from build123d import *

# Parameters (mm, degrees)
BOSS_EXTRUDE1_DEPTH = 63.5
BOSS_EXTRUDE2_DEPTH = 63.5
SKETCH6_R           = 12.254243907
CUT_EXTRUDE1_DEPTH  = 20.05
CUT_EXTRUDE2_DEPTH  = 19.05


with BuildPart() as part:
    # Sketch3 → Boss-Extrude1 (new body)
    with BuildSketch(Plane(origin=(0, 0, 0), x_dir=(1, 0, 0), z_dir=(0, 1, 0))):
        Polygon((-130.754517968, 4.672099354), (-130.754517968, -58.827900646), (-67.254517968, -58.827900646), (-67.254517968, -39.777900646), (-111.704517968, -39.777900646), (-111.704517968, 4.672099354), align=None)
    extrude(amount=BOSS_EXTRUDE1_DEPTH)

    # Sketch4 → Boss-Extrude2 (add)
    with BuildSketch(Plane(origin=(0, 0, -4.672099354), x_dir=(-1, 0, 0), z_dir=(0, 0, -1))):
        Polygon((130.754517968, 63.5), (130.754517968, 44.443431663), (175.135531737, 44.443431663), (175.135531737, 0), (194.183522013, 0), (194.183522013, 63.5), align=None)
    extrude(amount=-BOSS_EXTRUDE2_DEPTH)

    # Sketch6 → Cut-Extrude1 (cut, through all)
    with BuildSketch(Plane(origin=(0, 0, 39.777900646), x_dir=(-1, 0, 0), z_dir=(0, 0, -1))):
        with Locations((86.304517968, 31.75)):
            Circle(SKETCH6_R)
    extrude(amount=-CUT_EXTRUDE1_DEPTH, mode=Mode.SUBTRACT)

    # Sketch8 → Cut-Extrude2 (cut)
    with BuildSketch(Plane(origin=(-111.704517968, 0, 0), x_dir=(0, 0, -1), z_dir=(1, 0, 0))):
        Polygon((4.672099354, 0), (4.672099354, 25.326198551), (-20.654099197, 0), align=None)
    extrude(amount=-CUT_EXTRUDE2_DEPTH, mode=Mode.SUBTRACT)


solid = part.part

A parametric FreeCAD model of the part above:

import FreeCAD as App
import Part
import Sketcher
from FreeCAD import Vector
Q = App.Units.Quantity


def add_polygon(sketch, points):
    """Adds a closed chain of lines whose ends are joined by coincident constraints."""
    first, n = sketch.GeometryCount, len(points)
    for a, b in zip(points, points[1:] + points[:1]):
        sketch.addGeometry(Part.LineSegment(App.Vector(*a, 0), App.Vector(*b, 0)), False)
    for i in range(n):
        sketch.addConstraint(Sketcher.Constraint("Coincident", first + i, 2, first + (i + 1) % n, 1))

doc = App.newDocument("Part")
body = doc.addObject("PartDesign::Body", "Body")

# Sketch on XZ plane
sketch1 = body.newObject("Sketcher::SketchObject", "Sketch")
sketch1.AttachmentSupport = (doc.getObject("XZ_Plane"), [""])
sketch1.MapMode = "FlatFace"
add_polygon(sketch1, [(-131, -5), (-131, 59), (-67, 59), (-67, 40), (-112, 40), (-112, -5)])  # lines 0-5
sketch1.addConstraint(Sketcher.Constraint("Vertical", 0))
sketch1.addConstraint(Sketcher.Constraint("Horizontal", 1))
sketch1.addConstraint(Sketcher.Constraint("Vertical", 2))
sketch1.addConstraint(Sketcher.Constraint("Horizontal", 3))
sketch1.addConstraint(Sketcher.Constraint("Vertical", 4))
sketch1.addConstraint(Sketcher.Constraint("Horizontal", 5))
sketch1.addConstraint(Sketcher.Constraint("Equal", 1, 0))
sketch1.addConstraint(Sketcher.Constraint("Equal", 5, 2))
sketch1.addConstraint(Sketcher.Constraint("DistanceX", 1, 1, 1, 2, Q("2.5 in")))
sketch1.addConstraint(Sketcher.Constraint("DistanceX", 3, 2, 3, 1, Q("1.75 in")))
sketch1.addConstraint(Sketcher.Constraint("DistanceY", -1, 1, 0, 2, Q("58.827901 mm")))
sketch1.addConstraint(Sketcher.Constraint("DistanceX", 0, 2, -1, 1, Q("130.754518 mm")))
pad1 = body.newObject("PartDesign::Pad", "Pad")
pad1.Profile = sketch1
pad1.Length = Q("2.5 in")
pad1.Reversed = True

# Sketch on XY plane
sketch2 = body.newObject("Sketcher::SketchObject", "Sketch001")
sketch2.AttachmentSupport = (doc.getObject("XY_Plane"), [""])
sketch2.MapMode = "FlatFace"
sketch2.AttachmentOffset = App.Placement(Vector(0, 0, -4.672099), App.Rotation())
add_polygon(sketch2, [(-131, 64), (-131, 44), (-175, 44), (-175, 0), (-194, 0), (-194, 64)])  # lines 0-5
sketch2.addConstraint(Sketcher.Constraint("Vertical", 0))
sketch2.addConstraint(Sketcher.Constraint("Horizontal", 1))
sketch2.addConstraint(Sketcher.Constraint("Vertical", 2))
sketch2.addConstraint(Sketcher.Constraint("Horizontal", 3))
sketch2.addConstraint(Sketcher.Constraint("Vertical", 4))
sketch2.addConstraint(Sketcher.Constraint("Horizontal", 5))
sketch2.addConstraint(Sketcher.Constraint("PointOnObject", 2, 2, -1))
sketch2.addConstraint(Sketcher.Constraint("DistanceY", 4, 1, 4, 2, Q("2.5 in")))
sketch2.addConstraint(Sketcher.Constraint("DistanceX", 3, 2, 3, 1, Q("19.04799 mm")))
sketch2.addConstraint(Sketcher.Constraint("DistanceY", 0, 2, 0, 1, Q("19.056568 mm")))
sketch2.addConstraint(Sketcher.Constraint("DistanceX", 1, 2, 1, 1, Q("44.381014 mm")))
sketch2.addConstraint(Sketcher.Constraint("DistanceX", 1, 2, -1, 1, Q("175.135532 mm")))
pad2 = body.newObject("PartDesign::Pad", "Pad001")
pad2.Profile = sketch2
pad2.Length = Q("2.5 in")

# Sketch on XY plane
sketch3 = body.newObject("Sketcher::SketchObject", "Sketch002")
sketch3.AttachmentSupport = (doc.getObject("XY_Plane"), [""])
sketch3.MapMode = "FlatFace"
sketch3.AttachmentOffset = App.Placement(Vector(0, 0, 39.777901), App.Rotation())
sketch3.addGeometry(Part.Circle(Vector(-86, 32, 0), Vector(0, 0, 1), 12), False)
sketch3.addConstraint(Sketcher.Constraint("DistanceY", -1, 1, 0, 3, Q("1.25 in")))
sketch3.addConstraint(Sketcher.Constraint("Diameter", 0, Q("24.508488 mm")))
sketch3.addConstraint(Sketcher.Constraint("DistanceX", 0, 3, -1, 1, Q("86.304518 mm")))
pocket1 = body.newObject("PartDesign::Pocket", "Pocket")
pocket1.Profile = sketch3
pocket1.Type = "ThroughAll"
pocket1.Reversed = True

# Sketch on YZ plane
sketch4 = body.newObject("Sketcher::SketchObject", "Sketch003")
sketch4.AttachmentSupport = (doc.getObject("YZ_Plane"), [""])
sketch4.MapMode = "FlatFace"
sketch4.AttachmentOffset = App.Placement(Vector(0, 0, -111.704518), App.Rotation())
add_polygon(sketch4, [(0, -5), (25, -5), (0, 21)])  # lines 0-2
sketch4.addConstraint(Sketcher.Constraint("Horizontal", 0))
sketch4.addConstraint(Sketcher.Constraint("Vertical", 2))
sketch4.addConstraint(Sketcher.Constraint("PointOnObject", 1, 2, -2))
sketch4.addConstraint(Sketcher.Constraint("Equal", 0, 2))
sketch4.addConstraint(Sketcher.Constraint("DistanceX", 0, 1, 0, 2, Q("25.326199 mm")))
sketch4.addConstraint(Sketcher.Constraint("DistanceY", 0, 2, -1, 1, Q("4.672099 mm")))
pocket2 = body.newObject("PartDesign::Pocket", "Pocket001")
pocket2.Profile = sketch4
pocket2.Length = Q("0.75 in")

doc.recompute()
